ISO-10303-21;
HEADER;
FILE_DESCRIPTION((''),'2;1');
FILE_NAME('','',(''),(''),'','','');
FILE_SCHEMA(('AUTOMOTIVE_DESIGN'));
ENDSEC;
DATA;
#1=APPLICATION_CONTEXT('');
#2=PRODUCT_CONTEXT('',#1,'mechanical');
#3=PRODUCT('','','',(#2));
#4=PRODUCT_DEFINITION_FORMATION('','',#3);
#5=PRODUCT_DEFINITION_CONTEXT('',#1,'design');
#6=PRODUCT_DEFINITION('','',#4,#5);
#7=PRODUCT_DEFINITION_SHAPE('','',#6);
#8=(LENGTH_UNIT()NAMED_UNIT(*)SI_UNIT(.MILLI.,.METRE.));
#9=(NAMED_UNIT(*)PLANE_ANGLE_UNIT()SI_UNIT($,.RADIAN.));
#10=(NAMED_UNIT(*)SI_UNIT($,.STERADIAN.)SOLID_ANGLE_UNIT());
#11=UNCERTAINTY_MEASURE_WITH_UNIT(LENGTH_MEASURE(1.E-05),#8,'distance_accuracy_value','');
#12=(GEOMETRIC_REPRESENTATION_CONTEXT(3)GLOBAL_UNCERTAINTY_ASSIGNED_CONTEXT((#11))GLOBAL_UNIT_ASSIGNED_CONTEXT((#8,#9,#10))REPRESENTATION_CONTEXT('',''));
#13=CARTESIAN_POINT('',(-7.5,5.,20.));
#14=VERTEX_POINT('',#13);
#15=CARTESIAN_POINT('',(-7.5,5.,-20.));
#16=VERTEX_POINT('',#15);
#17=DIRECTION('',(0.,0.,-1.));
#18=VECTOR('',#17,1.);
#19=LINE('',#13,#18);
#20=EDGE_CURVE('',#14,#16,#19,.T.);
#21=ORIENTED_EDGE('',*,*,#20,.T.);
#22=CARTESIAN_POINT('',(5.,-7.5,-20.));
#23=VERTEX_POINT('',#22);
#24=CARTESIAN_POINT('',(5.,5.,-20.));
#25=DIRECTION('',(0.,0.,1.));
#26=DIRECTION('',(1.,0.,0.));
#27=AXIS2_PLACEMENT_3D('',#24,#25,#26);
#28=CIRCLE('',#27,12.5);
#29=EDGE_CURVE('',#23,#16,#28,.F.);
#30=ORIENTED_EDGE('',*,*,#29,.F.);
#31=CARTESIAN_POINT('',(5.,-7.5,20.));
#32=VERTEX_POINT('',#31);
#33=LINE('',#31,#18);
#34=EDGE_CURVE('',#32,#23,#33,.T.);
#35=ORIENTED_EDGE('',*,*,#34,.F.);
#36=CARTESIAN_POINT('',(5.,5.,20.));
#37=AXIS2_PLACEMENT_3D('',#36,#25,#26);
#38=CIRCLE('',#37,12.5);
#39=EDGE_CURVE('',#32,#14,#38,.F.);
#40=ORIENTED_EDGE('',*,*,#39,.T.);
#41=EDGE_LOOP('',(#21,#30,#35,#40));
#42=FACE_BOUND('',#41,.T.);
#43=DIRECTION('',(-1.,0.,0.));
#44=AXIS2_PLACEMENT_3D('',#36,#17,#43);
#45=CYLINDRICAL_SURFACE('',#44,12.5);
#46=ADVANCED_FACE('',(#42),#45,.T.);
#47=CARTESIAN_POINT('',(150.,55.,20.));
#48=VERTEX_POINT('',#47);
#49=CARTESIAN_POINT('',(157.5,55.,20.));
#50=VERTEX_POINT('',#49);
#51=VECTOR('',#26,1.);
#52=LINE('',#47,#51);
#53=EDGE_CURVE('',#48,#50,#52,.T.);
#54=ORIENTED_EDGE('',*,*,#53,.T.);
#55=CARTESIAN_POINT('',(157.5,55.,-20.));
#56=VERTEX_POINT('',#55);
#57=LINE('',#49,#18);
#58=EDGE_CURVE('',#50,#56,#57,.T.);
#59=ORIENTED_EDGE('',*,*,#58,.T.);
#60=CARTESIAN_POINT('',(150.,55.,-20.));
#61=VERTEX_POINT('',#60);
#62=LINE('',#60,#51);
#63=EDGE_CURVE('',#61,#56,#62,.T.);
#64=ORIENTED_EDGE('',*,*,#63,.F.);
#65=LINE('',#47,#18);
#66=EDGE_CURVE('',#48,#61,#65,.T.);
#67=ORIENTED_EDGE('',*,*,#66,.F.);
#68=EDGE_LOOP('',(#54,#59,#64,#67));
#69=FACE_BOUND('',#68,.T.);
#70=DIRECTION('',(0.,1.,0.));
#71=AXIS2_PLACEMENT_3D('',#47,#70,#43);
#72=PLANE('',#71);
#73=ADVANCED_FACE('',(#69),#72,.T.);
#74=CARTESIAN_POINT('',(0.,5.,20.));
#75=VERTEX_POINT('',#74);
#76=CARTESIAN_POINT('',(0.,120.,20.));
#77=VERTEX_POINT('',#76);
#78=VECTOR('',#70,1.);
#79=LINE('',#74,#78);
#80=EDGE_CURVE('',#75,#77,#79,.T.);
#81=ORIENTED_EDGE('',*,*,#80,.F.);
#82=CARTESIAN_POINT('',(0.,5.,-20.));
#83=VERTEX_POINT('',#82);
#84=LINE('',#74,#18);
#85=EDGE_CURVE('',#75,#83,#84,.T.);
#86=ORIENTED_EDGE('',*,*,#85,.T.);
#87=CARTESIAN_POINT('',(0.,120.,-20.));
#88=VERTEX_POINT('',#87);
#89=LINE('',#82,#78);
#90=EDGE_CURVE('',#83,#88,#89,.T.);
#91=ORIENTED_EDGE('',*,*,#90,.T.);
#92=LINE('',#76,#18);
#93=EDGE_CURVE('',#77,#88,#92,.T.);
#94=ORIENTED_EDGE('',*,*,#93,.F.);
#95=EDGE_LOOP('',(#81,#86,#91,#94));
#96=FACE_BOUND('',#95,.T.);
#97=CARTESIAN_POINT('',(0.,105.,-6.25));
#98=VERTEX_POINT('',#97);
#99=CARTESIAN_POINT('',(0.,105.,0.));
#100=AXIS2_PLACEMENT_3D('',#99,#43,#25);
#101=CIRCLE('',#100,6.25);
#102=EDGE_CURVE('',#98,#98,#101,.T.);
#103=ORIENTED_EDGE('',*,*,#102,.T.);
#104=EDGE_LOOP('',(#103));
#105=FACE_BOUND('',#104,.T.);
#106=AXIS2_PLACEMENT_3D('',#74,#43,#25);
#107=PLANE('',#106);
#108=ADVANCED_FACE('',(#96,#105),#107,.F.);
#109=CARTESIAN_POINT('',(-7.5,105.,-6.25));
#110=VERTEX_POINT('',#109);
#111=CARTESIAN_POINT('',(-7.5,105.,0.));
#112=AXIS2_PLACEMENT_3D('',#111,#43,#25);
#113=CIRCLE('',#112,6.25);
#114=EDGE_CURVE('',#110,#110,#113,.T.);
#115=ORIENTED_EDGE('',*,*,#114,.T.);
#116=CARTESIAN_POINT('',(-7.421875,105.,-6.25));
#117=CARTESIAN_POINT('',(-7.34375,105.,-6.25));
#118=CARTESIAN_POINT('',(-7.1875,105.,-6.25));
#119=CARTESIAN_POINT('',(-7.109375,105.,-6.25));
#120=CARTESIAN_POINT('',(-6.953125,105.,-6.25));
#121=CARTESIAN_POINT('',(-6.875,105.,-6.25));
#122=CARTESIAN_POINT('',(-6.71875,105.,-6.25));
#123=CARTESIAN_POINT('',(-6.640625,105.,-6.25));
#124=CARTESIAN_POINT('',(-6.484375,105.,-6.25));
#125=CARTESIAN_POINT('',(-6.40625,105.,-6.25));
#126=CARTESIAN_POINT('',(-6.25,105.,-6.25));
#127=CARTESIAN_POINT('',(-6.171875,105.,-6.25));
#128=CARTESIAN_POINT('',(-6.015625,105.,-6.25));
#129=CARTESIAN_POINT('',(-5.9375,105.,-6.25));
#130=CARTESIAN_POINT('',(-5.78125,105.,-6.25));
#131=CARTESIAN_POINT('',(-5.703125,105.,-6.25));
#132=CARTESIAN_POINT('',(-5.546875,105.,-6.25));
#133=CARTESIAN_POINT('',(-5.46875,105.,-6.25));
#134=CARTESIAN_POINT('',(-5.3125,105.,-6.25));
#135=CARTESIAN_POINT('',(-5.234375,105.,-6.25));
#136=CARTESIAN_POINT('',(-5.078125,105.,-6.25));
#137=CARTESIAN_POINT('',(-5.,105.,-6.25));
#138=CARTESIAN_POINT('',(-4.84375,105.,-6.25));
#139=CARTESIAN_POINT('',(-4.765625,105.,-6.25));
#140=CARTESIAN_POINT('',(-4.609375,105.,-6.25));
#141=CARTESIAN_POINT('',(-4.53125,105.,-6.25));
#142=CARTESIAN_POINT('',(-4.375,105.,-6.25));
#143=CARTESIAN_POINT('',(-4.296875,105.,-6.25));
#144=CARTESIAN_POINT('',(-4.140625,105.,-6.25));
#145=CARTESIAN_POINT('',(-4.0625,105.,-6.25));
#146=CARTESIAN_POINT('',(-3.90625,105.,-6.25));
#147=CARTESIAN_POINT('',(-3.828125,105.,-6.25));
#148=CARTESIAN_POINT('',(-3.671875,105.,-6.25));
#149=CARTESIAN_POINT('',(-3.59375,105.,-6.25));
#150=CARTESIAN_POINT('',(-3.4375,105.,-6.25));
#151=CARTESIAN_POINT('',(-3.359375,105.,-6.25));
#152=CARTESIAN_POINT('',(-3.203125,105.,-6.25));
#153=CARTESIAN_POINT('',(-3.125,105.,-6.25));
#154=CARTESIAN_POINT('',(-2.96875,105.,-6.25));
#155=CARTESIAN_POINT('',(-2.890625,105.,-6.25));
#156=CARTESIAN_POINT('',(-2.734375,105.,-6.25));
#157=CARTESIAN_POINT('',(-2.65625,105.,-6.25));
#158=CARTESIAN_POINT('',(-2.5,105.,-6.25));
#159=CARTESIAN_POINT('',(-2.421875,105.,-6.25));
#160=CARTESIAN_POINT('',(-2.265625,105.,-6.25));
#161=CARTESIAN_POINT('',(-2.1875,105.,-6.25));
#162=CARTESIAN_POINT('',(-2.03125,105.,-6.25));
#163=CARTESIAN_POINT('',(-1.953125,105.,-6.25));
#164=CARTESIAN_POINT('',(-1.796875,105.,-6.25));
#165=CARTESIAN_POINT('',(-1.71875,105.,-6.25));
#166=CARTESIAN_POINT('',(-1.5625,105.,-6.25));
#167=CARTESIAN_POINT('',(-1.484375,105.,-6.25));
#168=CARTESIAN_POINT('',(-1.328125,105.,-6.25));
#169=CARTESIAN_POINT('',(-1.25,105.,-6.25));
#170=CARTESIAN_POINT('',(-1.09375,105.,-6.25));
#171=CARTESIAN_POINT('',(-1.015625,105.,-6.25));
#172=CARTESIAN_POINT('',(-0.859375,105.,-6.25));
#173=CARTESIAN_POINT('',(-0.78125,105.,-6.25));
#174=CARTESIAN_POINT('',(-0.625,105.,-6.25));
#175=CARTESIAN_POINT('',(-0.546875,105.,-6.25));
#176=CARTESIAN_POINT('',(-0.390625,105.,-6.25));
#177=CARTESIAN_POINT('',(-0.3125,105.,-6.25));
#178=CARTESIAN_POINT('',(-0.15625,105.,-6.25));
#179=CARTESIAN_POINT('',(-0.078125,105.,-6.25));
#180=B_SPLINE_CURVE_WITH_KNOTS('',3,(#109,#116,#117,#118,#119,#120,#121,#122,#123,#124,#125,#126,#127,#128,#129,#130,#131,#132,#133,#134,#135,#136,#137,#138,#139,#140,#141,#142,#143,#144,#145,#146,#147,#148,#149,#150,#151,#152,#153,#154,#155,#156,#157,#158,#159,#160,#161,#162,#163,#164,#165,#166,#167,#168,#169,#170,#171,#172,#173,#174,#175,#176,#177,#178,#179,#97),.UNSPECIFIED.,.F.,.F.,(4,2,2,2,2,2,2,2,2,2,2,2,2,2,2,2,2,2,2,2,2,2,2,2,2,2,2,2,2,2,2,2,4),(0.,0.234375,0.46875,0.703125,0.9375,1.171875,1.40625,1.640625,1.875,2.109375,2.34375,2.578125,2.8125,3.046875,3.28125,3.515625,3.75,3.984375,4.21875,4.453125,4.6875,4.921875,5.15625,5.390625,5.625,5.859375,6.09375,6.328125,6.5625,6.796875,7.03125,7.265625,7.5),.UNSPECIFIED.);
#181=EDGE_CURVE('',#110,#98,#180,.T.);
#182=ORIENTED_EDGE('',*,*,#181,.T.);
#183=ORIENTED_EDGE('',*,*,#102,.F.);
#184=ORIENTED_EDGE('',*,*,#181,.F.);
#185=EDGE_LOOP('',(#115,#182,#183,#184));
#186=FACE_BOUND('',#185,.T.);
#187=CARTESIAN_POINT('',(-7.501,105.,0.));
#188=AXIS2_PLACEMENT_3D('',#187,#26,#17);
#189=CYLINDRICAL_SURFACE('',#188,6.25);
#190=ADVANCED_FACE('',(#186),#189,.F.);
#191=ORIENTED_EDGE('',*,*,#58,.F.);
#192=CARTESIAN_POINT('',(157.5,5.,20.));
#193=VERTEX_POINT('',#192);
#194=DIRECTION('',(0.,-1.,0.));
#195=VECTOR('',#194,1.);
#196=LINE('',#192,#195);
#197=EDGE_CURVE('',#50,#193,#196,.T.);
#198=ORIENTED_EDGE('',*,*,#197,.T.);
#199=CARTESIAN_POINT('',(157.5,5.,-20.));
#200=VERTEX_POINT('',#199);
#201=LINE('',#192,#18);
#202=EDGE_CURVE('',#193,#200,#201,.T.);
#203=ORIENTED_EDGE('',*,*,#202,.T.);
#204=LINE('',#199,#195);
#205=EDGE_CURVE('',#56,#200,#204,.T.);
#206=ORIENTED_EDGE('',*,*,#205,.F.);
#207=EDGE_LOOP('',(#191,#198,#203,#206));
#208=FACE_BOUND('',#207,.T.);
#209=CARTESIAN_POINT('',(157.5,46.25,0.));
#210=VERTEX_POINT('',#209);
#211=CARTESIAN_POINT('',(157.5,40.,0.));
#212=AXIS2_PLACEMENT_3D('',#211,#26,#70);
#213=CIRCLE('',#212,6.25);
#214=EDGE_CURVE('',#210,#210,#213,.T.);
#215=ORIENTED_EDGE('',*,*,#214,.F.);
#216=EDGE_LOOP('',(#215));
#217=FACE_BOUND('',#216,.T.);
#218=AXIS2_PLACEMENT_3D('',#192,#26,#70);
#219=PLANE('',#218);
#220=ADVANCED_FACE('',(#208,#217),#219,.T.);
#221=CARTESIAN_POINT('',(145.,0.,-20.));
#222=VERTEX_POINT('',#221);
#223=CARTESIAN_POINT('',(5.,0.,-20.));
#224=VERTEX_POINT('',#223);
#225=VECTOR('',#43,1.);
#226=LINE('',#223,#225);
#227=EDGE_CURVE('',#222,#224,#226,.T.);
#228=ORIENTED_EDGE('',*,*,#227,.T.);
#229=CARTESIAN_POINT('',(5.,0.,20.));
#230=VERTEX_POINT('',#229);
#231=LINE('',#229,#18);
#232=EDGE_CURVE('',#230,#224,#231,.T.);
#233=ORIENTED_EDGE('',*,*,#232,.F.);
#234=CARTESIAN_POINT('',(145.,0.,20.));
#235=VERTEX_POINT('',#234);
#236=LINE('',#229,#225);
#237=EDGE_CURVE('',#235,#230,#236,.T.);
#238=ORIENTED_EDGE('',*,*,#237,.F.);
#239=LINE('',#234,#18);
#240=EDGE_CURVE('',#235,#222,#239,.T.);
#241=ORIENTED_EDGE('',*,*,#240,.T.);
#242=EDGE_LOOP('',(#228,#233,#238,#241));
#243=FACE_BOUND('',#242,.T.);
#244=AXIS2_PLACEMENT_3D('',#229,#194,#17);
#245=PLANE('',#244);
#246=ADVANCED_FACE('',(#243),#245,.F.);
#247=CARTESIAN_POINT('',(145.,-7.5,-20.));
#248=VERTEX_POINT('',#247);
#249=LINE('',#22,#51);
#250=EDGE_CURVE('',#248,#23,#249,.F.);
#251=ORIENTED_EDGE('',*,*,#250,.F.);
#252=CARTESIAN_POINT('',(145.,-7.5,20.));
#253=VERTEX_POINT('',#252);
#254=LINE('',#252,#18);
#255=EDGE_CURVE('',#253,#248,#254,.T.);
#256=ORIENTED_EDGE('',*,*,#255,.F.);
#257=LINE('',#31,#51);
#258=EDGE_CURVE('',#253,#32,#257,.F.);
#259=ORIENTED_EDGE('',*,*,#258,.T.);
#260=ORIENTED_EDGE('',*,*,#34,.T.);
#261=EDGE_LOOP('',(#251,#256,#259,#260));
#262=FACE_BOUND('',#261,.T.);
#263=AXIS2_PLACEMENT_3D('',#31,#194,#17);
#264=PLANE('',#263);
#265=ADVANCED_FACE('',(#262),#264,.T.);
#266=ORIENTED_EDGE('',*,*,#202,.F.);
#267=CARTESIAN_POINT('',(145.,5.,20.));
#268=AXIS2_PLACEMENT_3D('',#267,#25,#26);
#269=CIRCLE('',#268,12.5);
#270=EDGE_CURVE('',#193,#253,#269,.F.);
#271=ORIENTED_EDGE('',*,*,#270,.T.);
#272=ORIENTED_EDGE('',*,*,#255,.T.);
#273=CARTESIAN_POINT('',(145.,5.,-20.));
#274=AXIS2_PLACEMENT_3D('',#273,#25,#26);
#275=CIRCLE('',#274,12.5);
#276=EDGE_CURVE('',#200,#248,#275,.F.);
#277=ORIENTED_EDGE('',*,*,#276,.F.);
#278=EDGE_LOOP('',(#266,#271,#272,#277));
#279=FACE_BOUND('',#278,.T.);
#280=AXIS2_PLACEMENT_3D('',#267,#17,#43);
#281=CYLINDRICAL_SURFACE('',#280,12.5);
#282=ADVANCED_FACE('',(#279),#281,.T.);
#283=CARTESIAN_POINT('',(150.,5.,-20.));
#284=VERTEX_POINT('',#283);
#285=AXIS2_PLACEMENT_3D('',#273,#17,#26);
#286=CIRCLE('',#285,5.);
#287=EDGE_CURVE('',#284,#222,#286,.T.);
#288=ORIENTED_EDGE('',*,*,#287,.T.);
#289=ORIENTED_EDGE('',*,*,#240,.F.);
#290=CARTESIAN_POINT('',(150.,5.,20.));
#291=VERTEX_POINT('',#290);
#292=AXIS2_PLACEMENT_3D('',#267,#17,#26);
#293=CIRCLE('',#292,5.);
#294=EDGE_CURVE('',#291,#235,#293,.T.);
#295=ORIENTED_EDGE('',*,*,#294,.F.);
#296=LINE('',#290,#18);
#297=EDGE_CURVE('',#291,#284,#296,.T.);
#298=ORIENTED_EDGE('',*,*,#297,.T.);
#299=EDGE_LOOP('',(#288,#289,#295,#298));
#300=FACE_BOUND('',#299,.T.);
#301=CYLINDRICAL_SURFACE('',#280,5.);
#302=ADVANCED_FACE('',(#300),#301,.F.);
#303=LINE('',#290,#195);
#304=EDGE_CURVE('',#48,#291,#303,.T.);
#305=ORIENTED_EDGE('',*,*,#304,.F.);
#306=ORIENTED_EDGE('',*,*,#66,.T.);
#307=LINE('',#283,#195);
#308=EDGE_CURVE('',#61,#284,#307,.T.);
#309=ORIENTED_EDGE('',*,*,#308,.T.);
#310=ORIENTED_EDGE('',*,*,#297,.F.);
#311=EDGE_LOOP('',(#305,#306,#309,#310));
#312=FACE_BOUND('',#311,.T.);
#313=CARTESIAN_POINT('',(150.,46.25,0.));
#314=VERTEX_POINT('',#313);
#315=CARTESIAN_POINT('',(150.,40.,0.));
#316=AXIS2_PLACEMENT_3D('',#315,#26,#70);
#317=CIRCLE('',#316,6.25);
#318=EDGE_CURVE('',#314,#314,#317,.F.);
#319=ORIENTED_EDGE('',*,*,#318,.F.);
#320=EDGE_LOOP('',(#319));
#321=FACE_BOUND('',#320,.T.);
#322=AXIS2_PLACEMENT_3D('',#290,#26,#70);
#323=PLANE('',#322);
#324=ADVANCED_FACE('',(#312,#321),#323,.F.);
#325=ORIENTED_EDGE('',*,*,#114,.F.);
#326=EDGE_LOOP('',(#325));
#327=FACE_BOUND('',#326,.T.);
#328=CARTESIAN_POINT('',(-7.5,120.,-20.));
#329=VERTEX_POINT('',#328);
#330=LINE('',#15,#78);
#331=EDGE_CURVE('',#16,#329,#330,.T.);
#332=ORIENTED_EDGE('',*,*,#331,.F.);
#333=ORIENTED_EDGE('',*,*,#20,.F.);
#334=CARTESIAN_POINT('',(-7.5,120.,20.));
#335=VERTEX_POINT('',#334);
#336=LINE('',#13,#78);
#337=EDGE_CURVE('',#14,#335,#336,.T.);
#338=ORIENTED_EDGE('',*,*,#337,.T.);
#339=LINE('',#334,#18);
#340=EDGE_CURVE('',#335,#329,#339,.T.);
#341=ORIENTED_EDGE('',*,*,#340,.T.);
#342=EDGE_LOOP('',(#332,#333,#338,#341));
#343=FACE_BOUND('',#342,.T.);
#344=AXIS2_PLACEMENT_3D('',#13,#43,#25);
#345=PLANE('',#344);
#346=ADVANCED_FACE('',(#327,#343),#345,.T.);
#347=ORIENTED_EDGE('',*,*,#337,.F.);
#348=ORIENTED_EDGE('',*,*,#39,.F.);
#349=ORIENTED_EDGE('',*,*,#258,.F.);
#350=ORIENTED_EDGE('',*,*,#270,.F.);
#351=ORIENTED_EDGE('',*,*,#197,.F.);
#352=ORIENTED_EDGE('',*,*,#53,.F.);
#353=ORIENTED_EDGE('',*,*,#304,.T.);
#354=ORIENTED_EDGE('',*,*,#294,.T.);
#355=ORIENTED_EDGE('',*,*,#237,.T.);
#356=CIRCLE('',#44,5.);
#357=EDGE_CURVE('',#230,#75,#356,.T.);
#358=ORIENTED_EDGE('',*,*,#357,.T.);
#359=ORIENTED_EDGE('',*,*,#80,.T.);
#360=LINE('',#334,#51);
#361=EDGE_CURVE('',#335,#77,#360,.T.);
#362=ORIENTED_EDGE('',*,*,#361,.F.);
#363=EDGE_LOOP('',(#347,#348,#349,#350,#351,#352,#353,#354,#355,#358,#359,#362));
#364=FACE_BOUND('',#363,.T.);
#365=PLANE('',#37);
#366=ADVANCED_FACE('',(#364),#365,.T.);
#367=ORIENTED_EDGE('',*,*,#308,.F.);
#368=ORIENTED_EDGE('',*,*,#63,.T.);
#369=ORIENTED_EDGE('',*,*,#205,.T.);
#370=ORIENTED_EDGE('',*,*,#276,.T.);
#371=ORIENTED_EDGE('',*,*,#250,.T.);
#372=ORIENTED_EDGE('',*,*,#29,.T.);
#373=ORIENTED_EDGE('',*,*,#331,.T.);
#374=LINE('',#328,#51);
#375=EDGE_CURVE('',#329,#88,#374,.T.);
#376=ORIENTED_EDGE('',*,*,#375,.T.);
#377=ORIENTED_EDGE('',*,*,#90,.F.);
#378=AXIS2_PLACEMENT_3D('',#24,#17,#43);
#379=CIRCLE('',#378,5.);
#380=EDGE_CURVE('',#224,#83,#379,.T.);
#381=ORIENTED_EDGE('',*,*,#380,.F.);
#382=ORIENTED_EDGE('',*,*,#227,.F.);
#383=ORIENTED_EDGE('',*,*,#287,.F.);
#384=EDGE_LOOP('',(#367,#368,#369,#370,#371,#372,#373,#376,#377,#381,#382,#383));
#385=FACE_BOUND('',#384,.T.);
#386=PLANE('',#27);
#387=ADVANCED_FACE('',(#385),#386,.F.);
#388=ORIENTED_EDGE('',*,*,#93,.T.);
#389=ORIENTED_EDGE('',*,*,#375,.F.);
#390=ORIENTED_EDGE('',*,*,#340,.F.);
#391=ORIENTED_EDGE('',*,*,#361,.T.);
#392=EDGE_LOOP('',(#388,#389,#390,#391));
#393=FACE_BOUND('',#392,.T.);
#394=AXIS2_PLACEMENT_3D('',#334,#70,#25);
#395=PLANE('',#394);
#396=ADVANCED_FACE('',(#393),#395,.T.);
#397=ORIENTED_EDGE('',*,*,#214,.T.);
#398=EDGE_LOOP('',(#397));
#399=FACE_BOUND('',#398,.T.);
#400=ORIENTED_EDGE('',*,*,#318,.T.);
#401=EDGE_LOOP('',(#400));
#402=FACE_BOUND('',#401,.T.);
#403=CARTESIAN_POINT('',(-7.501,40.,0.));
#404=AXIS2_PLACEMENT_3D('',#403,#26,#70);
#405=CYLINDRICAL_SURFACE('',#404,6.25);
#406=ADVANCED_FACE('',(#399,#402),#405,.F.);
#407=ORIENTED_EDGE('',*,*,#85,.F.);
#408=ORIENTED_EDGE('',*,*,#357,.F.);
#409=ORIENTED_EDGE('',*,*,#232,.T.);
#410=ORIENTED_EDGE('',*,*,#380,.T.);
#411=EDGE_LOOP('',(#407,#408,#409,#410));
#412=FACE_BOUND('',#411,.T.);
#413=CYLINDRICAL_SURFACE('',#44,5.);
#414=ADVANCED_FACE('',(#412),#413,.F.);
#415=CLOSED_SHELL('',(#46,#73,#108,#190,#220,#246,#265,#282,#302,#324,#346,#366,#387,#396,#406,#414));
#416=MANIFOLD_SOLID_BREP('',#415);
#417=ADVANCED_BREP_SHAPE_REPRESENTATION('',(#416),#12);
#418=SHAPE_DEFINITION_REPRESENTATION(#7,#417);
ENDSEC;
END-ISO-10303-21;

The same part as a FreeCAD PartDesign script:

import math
import FreeCAD as App
import Part
import Sketcher
from FreeCAD import Vector
Q = App.Units.Quantity

doc = App.newDocument("Part")
body = doc.addObject("PartDesign::Body", "Body")

# Sketch on XY plane
sketch1 = body.newObject("Sketcher::SketchObject", "Sketch")
sketch1.AttachmentSupport = (doc.getObject("XY_Plane"), [""])
sketch1.MapMode = "FlatFace"
sketch1.addGeometry(Part.LineSegment(Vector(0, 5, 0), Vector(0, 120, 0)), False)
sketch1.addGeometry(Part.LineSegment(Vector(0, 120, 0), Vector(-8, 120, 0)), False)
sketch1.addGeometry(Part.LineSegment(Vector(-8, 120, 0), Vector(-8, 5, 0)), False)
sketch1.addGeometry(Part.ArcOfCircle(Part.Circle(Vector(5, 5, 0), Vector(0, 0, 1), 12), math.radians(180), math.radians(270)), False)
sketch1.addGeometry(Part.LineSegment(Vector(5, -8, 0), Vector(145, -8, 0)), False)
sketch1.addGeometry(Part.ArcOfCircle(Part.Circle(Vector(145, 5, 0), Vector(0, 0, 1), 12), math.radians(-90), math.radians(0)), False)
sketch1.addGeometry(Part.LineSegment(Vector(158, 5, 0), Vector(158, 55, 0)), False)
sketch1.addGeometry(Part.LineSegment(Vector(158, 55, 0), Vector(150, 55, 0)), False)
sketch1.addGeometry(Part.LineSegment(Vector(150, 55, 0), Vector(150, 5, 0)), False)
sketch1.addGeometry(Part.ArcOfCircle(Part.Circle(Vector(145, 5, 0), Vector(0, 0, 1), 5), math.radians(-90), math.radians(0)), False)
sketch1.addGeometry(Part.LineSegment(Vector(145, 0, 0), Vector(5, 0, 0)), False)
sketch1.addGeometry(Part.ArcOfCircle(Part.Circle(Vector(5, 5, 0), Vector(0, 0, 1), 5), math.radians(180), math.radians(270)), False)
sketch1.addConstraint(Sketcher.Constraint("Coincident", 0, 2, 1, 1))
sketch1.addConstraint(Sketcher.Constraint("Coincident", 1, 2, 2, 1))
sketch1.addConstraint(Sketcher.Constraint("Tangent", 2, 2, 3, 1))
sketch1.addConstraint(Sketcher.Constraint("Tangent", 3, 2, 4, 1))
sketch1.addConstraint(Sketcher.Constraint("Tangent", 4, 2, 5, 1))
sketch1.addConstraint(Sketcher.Constraint("Tangent", 5, 2, 6, 1))
sketch1.addConstraint(Sketcher.Constraint("Coincident", 6, 2, 7, 1))
sketch1.addConstraint(Sketcher.Constraint("Coincident", 7, 2, 8, 1))
sketch1.addConstraint(Sketcher.Constraint("Tangent", 8, 2, 9, 2))
sketch1.addConstraint(Sketcher.Constraint("Tangent", 9, 1, 10, 1))
sketch1.addConstraint(Sketcher.Constraint("Tangent", 10, 2, 11, 2))
sketch1.addConstraint(Sketcher.Constraint("Tangent", 11, 1, 0, 1))
sketch1.addConstraint(Sketcher.Constraint("Vertical", 0))
sketch1.addConstraint(Sketcher.Constraint("Horizontal", 1))
sketch1.addConstraint(Sketcher.Constraint("Vertical", 2))
sketch1.addConstraint(Sketcher.Constraint("Horizontal", 4))
sketch1.addConstraint(Sketcher.Constraint("Vertical", 6))
sketch1.addConstraint(Sketcher.Constraint("Horizontal", 7))
sketch1.addConstraint(Sketcher.Constraint("Vertical", 8))
sketch1.addConstraint(Sketcher.Constraint("Horizontal", 10))
sketch1.addConstraint(Sketcher.Constraint("Coincident", 9, 3, 5, 3))
sketch1.addConstraint(Sketcher.Constraint("Coincident", 11, 3, 3, 3))
sketch1.addConstraint(Sketcher.Constraint("Equal", 3, 5))
sketch1.addConstraint(Sketcher.Constraint("PointOnObject", 0, 2, -2))
sketch1.addConstraint(Sketcher.Constraint("PointOnObject", 9, 1, -1))
sketch1.addConstraint(Sketcher.Constraint("Radius", 9, Q("5 mm")))
sketch1.addConstraint(Sketcher.Constraint("Radius", 3, Q("12.5 mm")))
sketch1.addConstraint(Sketcher.Constraint("DistanceX", 4, 1, 4, 2, Q("140 mm")))
sketch1.addConstraint(Sketcher.Constraint("DistanceY", 0, 1, 0, 2, Q("115 mm")))
sketch1.addConstraint(Sketcher.Constraint("DistanceY", 6, 1, 6, 2, Q("50 mm")))
pad1 = body.newObject("PartDesign::Pad", "Pad")
pad1.Profile = sketch1
pad1.Length = 40
pad1.Midplane = True

# Sketch on YZ plane
sketch2 = body.newObject("Sketcher::SketchObject", "Sketch001")
sketch2.AttachmentSupport = (doc.getObject("YZ_Plane"), [""])
sketch2.MapMode = "FlatFace"
sketch2.addGeometry(Part.Circle(Vector(105, 0, 0), Vector(0, 0, 1), 6), False)
sketch2.addConstraint(Sketcher.Constraint("PointOnObject", 0, 3, -1))
sketch2.addConstraint(Sketcher.Constraint("Diameter", 0, Q("12.5 mm")))
sketch2.addConstraint(Sketcher.Constraint("DistanceX", -1, 1, 0, 3, Q("105 mm")))
pocket1 = body.newObject("PartDesign::Pocket", "Pocket")
pocket1.Profile = sketch2
pocket1.Type = "UpToFirst"

# Sketch on YZ plane
sketch3 = body.newObject("Sketcher::SketchObject", "Sketch002")
sketch3.AttachmentSupport = (doc.getObject("YZ_Plane"), [""])
sketch3.MapMode = "FlatFace"
sketch3.AttachmentOffset = App.Placement(Vector(0, 0, 157.5), App.Rotation())
sketch3.addGeometry(Part.Circle(Vector(40, 0, 0), Vector(0, 0, 1), 6), False)
sketch3.addConstraint(Sketcher.Constraint("PointOnObject", 0, 3, -1))
sketch3.addConstraint(Sketcher.Constraint("Diameter", 0, Q("12.5 mm")))
sketch3.addConstraint(Sketcher.Constraint("DistanceX", -1, 1, 0, 3, Q("40 mm")))
pocket2 = body.newObject("PartDesign::Pocket", "Pocket001")
pocket2.Profile = sketch3
pocket2.Type = "UpToFirst"

doc.recompute()
